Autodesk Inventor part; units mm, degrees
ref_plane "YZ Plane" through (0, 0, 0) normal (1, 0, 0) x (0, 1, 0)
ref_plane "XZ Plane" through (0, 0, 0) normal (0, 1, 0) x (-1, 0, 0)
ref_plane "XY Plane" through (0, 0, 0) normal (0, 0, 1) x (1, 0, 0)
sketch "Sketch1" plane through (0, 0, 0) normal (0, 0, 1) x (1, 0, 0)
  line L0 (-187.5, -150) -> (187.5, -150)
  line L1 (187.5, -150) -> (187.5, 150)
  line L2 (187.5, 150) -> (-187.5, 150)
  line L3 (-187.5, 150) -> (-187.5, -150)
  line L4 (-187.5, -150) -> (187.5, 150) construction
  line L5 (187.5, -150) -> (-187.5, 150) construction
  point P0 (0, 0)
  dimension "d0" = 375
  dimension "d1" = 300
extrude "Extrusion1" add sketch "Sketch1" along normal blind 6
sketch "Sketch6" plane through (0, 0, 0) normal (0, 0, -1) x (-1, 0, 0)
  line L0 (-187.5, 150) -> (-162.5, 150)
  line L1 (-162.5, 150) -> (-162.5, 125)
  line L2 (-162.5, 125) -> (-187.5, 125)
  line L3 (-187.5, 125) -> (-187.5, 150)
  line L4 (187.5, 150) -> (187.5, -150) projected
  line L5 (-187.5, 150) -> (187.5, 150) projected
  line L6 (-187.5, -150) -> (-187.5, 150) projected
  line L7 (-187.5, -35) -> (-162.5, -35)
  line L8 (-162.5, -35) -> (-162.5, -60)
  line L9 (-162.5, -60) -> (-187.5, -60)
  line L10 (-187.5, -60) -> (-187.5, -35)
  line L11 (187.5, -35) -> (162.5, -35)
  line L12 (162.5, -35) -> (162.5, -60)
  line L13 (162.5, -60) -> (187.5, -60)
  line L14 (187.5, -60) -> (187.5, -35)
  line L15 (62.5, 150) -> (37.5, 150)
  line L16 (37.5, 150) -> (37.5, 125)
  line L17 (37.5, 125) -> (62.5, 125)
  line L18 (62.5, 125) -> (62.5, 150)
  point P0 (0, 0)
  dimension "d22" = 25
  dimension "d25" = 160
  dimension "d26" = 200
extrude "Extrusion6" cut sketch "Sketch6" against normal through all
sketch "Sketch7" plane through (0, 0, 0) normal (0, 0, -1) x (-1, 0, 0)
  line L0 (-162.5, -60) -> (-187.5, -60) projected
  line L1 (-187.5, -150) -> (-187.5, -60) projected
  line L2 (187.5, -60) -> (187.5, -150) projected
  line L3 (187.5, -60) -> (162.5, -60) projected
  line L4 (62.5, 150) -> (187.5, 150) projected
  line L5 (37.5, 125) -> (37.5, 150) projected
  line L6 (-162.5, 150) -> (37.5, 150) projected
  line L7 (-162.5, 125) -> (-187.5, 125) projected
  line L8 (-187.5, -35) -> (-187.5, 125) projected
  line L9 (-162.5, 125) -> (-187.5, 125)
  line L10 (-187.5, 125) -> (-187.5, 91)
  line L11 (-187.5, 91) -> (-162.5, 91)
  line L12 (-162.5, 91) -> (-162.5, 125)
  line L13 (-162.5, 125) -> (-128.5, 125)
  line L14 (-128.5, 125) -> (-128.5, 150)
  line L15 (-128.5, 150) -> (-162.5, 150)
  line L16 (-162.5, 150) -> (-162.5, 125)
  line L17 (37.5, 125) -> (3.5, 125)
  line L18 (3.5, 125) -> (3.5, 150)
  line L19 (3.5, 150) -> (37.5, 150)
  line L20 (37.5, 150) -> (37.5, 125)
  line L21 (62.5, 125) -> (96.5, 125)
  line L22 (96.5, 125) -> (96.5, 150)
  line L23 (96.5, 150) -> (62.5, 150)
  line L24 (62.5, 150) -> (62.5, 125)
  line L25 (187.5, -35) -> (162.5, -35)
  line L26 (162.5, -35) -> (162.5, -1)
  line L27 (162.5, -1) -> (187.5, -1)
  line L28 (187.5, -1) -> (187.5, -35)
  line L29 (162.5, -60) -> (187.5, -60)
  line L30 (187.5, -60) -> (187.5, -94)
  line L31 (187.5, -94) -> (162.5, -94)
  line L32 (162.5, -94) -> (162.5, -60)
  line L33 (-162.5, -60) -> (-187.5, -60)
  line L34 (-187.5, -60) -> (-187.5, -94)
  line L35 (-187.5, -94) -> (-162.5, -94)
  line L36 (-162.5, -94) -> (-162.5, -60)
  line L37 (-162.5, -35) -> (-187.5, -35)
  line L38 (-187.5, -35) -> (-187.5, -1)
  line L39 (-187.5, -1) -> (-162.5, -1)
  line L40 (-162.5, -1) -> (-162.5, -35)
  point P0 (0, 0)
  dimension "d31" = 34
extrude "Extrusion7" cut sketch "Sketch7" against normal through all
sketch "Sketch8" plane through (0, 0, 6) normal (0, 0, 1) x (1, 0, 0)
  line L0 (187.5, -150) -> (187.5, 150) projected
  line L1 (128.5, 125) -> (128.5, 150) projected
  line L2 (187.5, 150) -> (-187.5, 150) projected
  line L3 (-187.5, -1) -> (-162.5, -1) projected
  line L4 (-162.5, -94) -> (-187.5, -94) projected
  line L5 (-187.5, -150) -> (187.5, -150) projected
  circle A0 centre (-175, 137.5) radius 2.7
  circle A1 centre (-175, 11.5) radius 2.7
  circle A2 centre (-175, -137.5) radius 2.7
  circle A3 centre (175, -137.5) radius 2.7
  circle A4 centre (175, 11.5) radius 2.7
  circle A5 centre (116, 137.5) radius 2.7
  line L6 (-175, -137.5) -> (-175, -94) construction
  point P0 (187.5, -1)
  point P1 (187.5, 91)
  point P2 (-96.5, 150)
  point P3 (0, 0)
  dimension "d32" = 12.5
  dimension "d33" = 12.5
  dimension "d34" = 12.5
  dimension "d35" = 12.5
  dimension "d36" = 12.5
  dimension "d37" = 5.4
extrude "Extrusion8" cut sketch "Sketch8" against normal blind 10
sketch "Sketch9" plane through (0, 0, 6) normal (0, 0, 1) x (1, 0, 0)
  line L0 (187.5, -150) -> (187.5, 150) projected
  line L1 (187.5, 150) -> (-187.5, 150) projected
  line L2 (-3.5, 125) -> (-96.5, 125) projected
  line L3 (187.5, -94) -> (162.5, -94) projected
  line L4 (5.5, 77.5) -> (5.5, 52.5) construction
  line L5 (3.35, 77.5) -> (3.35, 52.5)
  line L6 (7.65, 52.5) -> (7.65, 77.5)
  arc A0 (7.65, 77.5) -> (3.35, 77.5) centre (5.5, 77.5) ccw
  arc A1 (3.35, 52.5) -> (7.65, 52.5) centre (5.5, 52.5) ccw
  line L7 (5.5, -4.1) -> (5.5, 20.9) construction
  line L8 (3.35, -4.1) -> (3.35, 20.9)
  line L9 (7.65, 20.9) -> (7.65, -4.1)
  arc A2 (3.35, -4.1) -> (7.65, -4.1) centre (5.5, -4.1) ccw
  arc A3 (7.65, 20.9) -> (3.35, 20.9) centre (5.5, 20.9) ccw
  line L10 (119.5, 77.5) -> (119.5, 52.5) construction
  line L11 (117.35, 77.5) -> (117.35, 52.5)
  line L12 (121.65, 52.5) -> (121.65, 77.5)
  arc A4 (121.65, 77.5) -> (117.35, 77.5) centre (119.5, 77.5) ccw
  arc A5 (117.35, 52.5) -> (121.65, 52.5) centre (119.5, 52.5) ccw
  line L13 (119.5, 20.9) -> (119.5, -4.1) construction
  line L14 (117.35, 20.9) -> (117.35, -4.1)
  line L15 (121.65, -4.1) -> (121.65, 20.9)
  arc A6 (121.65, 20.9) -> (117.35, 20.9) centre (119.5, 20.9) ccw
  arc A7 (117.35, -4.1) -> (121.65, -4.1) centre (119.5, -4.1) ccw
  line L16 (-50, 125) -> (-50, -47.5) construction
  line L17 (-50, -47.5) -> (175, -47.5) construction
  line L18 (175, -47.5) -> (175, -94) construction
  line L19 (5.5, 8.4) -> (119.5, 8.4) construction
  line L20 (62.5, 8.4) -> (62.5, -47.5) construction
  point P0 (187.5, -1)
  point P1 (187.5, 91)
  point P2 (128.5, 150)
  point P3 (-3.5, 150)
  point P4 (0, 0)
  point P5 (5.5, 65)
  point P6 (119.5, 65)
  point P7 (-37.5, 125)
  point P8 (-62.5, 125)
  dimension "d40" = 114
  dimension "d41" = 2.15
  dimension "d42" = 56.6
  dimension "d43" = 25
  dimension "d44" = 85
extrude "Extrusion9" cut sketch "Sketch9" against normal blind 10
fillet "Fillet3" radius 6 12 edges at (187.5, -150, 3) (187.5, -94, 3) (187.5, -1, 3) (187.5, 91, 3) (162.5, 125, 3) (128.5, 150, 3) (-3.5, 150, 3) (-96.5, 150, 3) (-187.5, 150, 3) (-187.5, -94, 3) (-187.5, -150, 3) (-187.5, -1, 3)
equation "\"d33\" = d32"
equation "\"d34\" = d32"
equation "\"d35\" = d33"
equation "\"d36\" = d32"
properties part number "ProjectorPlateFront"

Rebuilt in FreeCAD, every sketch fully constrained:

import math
import FreeCAD as App
import Part
import Sketcher
Q = App.Units.Quantity


def edges_at(feature, points):
    """Names of the edges that pass closest to the given points."""
    edges = feature.Shape.Edges
    near = lambda p: min(range(len(edges)), key=lambda i: edges[i].distToShape(Part.Vertex(*p))[0])
    return sorted({f"Edge{near(p) + 1}" for p in points})


def add_polygon(sketch, points):
    """Adds a closed chain of lines whose ends are joined by coincident constraints."""
    first, n = sketch.GeometryCount, len(points)
    for a, b in zip(points, points[1:] + points[:1]):
        sketch.addGeometry(Part.LineSegment(App.Vector(*a, 0), App.Vector(*b, 0)), False)
    for i in range(n):
        sketch.addConstraint(Sketcher.Constraint("Coincident", first + i, 2, first + (i + 1) % n, 1))

doc = App.newDocument("Part")
body = doc.addObject("PartDesign::Body", "Body")

# Sketch on XY plane
sketch1 = body.newObject("Sketcher::SketchObject", "Sketch")
sketch1.AttachmentSupport = (doc.getObject("XY_Plane"), [""])
sketch1.MapMode = "FlatFace"
add_polygon(sketch1, [(-187.5, 150), (-187.5, -150), (187.5, -150), (187.5, 150)])  # lines 0-3
sketch1.addConstraint([
    Sketcher.Constraint("Vertical", 0),
    Sketcher.Constraint("Horizontal", 1),
    Sketcher.Constraint("Vertical", 2),
    Sketcher.Constraint("Horizontal", 3),
    Sketcher.Constraint("Symmetric", 0, 2, 2, 2, -1, 1),
    Sketcher.Constraint("DistanceX", 1, 1, 1, 2, Q("375 mm")),
    Sketcher.Constraint("DistanceY", 0, 2, 0, 1, Q("300 mm")),
])
pad1 = body.newObject("PartDesign::Pad", "Pad")
pad1.Profile = sketch1
pad1.Length = 6

# Sketch on XY plane
sketch2 = body.newObject("Sketcher::SketchObject", "Sketch001")
sketch2.AttachmentSupport = (doc.getObject("XY_Plane"), [""])
sketch2.MapMode = "FlatFace"
add_polygon(sketch2, [(-187.5, -60), (-187.5, -35), (-162.5, -35), (-162.5, -60)])  # lines 0-3
add_polygon(sketch2, [(-62.5, 150), (-37.5, 150), (-37.5, 125), (-62.5, 125)])  # lines 4-7
add_polygon(sketch2, [(162.5, -35), (187.5, -35), (187.5, -60), (162.5, -60)])  # lines 8-11
add_polygon(sketch2, [(162.5, 150), (187.5, 150), (187.5, 125), (162.5, 125)])  # lines 12-15
sketch2.addConstraint([
    Sketcher.Constraint("Vertical", 0),
    Sketcher.Constraint("Horizontal", 1),
    Sketcher.Constraint("Vertical", 2),
    Sketcher.Constraint("Horizontal", 3),
    Sketcher.Constraint("Horizontal", 4),
    Sketcher.Constraint("Vertical", 5),
    Sketcher.Constraint("Horizontal", 6),
    Sketcher.Constraint("Vertical", 7),
    Sketcher.Constraint("Horizontal", 8),
    Sketcher.Constraint("Vertical", 9),
    Sketcher.Constraint("Horizontal", 10),
    Sketcher.Constraint("Vertical", 11),
    Sketcher.Constraint("Horizontal", 12),
    Sketcher.Constraint("Vertical", 13),
    Sketcher.Constraint("Horizontal", 14),
    Sketcher.Constraint("Vertical", 15),
    Sketcher.Constraint("Symmetric", 0, 2, 8, 2, -2),
    Sketcher.Constraint("Symmetric", 2, 2, 10, 2, -2),
    Sketcher.Constraint("Horizontal", 7, 2, 12, 2),
    Sketcher.Constraint("Horizontal", 6, 2, 13, 2),
    Sketcher.Constraint("Vertical", 9, 2, 12, 2),
    Sketcher.Constraint("Vertical", 11, 2, 14, 2),
    Sketcher.Constraint("Equal", 3, 4),
    Sketcher.Constraint("Equal", 14, 0),
    Sketcher.Constraint("Equal", 2, 5),
    Sketcher.Constraint("DistanceX", 1, 1, 1, 2, Q("25 mm")),
    Sketcher.Constraint("DistanceY", 1, 2, 5, 2, Q("160 mm")),
    Sketcher.Constraint("DistanceX", 5, 2, 10, 2, Q("200 mm")),
    Sketcher.Constraint("DistanceY", 0, 2, -1, 1, Q("35 mm")),
    Sketcher.Constraint("DistanceX", 1, 2, 4, 2, Q("125 mm")),
])
pocket1 = body.newObject("PartDesign::Pocket", "Pocket")
pocket1.Profile = sketch2
pocket1.Type = "ThroughAll"
pocket1.Reversed = True

# Sketch on XY plane
sketch3 = body.newObject("Sketcher::SketchObject", "Sketch002")
sketch3.AttachmentSupport = (doc.getObject("XY_Plane"), [""])
sketch3.MapMode = "FlatFace"
add_polygon(sketch3, [(162.5, -94), (162.5, -60), (187.5, -60), (187.5, -94)])  # lines 0-3
add_polygon(sketch3, [(-187.5, -94), (-187.5, -60), (-162.5, -60), (-162.5, -94)])  # lines 4-7
add_polygon(sketch3, [(-96.5, 150), (-62.5, 150), (-62.5, 125), (-96.5, 125)])  # lines 8-11
add_polygon(sketch3, [(-3.5, 125), (-37.5, 125), (-37.5, 150), (-3.5, 150)])  # lines 12-15
add_polygon(sketch3, [(162.5, -1), (187.5, -1), (187.5, -35), (162.5, -35)])  # lines 16-19
add_polygon(sketch3, [(162.5, 91), (162.5, 125), (187.5, 125), (187.5, 91)])  # lines 20-23
add_polygon(sketch3, [(128.5, 125), (128.5, 150), (162.5, 150), (162.5, 125)])  # lines 24-27
add_polygon(sketch3, [(-162.5, -35), (-187.5, -35), (-187.5, -1), (-162.5, -1)])  # lines 28-31
sketch3.addConstraint([
    Sketcher.Constraint("Vertical", 0),
    Sketcher.Constraint("Horizontal", 1),
    Sketcher.Constraint("Vertical", 2),
    Sketcher.Constraint("Horizontal", 3),
    Sketcher.Constraint("Vertical", 4),
    Sketcher.Constraint("Horizontal", 5),
    Sketcher.Constraint("Vertical", 6),
    Sketcher.Constraint("Horizontal", 7),
    Sketcher.Constraint("Horizontal", 8),
    Sketcher.Constraint("Vertical", 9),
    Sketcher.Constraint("Horizontal", 10),
    Sketcher.Constraint("Vertical", 11),
    Sketcher.Constraint("Horizontal", 12),
    Sketcher.Constraint("Vertical", 13),
    Sketcher.Constraint("Horizontal", 14),
    Sketcher.Constraint("Vertical", 15),
    Sketcher.Constraint("Horizontal", 16),
    Sketcher.Constraint("Vertical", 17),
    Sketcher.Constraint("Horizontal", 18),
    Sketcher.Constraint("Vertical", 19),
    Sketcher.Constraint("Vertical", 20),
    Sketcher.Constraint("Horizontal", 21),
    Sketcher.Constraint("Vertical", 22),
    Sketcher.Constraint("Horizontal", 23),
    Sketcher.Constraint("Vertical", 24),
    Sketcher.Constraint("Horizontal", 25),
    Sketcher.Constraint("Vertical", 26),
    Sketcher.Constraint("Horizontal", 27),
    Sketcher.Constraint("Horizontal", 28),
    Sketcher.Constraint("Vertical", 29),
    Sketcher.Constraint("Horizontal", 30),
    Sketcher.Constraint("Vertical", 31),
    Sketcher.Constraint("Coincident", 26, 2, 20, 2),
    Sketcher.Constraint("Symmetric", 1, 2, 4, 2, -2),
    Sketcher.Constraint("Symmetric", 3, 2, 6, 2, -2),
    Sketcher.Constraint("Symmetric", 17, 2, 28, 2, -2),
    Sketcher.Constraint("Symmetric", 19, 2, 30, 2, -2),
    Sketcher.Constraint("Horizontal", 10, 2, 12, 2),
    Sketcher.Constraint("Horizontal", 11, 2, 13, 2),
    Sketcher.Constraint("Horizontal", 15, 2, 20, 2),
    Sketcher.Constraint("Horizontal", 14, 2, 24, 2),
    Sketcher.Constraint("Vertical", 2, 2, 16, 2),
    Sketcher.Constraint("Vertical", 3, 2, 18, 2),
    Sketcher.Constraint("Vertical", 19, 2, 20, 2),
    Sketcher.Constraint("Vertical", 17, 2, 21, 2),
    Sketcher.Constraint("Equal", 10, 12),
    Sketcher.Constraint("Equal", 14, 25),
    Sketcher.Constraint("Equal", 27, 0),
    Sketcher.Constraint("Equal", 30, 9),
    Sketcher.Constraint("Equal", 6, 17),
    Sketcher.Constraint("Equal", 19, 20),
    Sketcher.Constraint("DistanceX", 8, 1, 8, 2, Q("34 mm")),
    Sketcher.Constraint("DistanceX", 1, 1, 1, 2, Q("25 mm")),
    Sketcher.Constraint("DistanceY", 0, 2, -1, 1, Q("60 mm")),
    Sketcher.Constraint("DistanceY", -1, 1, 8, 2, Q("150 mm")),
    Sketcher.Constraint("DistanceY", 16, 2, -1, 1, Q("1 mm")),
    Sketcher.Constraint("DistanceX", 4, 2, 0, 2, Q("350 mm")),
    Sketcher.Constraint("DistanceX", 5, 2, 8, 2, Q("100 mm")),
    Sketcher.Constraint("DistanceX", 9, 2, 12, 2, Q("25 mm")),
])
pocket2 = body.newObject("PartDesign::Pocket", "Pocket001")
pocket2.Profile = sketch3
pocket2.Type = "ThroughAll"
pocket2.Reversed = True

# Sketch on XY plane
sketch4 = body.newObject("Sketcher::SketchObject", "Sketch003")
sketch4.AttachmentSupport = (doc.getObject("XY_Plane"), [""])
sketch4.MapMode = "FlatFace"
sketch4.AttachmentOffset = App.Placement(App.Vector(0, 0, 6), App.Rotation())
sketch4.addGeometry([
    Part.Circle(App.Vector(-175, 137.5, 0), App.Vector(0, 0, 1), 2.7),  # 0
    Part.Circle(App.Vector(-175, 11.5, 0), App.Vector(0, 0, 1), 2.7),  # 1
    Part.Circle(App.Vector(-175, -137.5, 0), App.Vector(0, 0, 1), 2.7),  # 2
    Part.Circle(App.Vector(175, -137.5, 0), App.Vector(0, 0, 1), 2.7),  # 3
    Part.Circle(App.Vector(175, 11.5, 0), App.Vector(0, 0, 1), 2.7),  # 4
    Part.Circle(App.Vector(116, 137.5, 0), App.Vector(0, 0, 1), 2.7),  # 5
], False)
sketch4.addConstraint([
    Sketcher.Constraint("Equal", 0, 1),
    Sketcher.Constraint("Equal", 1, 2),
    Sketcher.Constraint("Equal", 2, 3),
    Sketcher.Constraint("Equal", 3, 4),
    Sketcher.Constraint("Equal", 4, 5),
    Sketcher.Constraint("Symmetric", 0, 3, 3, 3, -1, 1),
    Sketcher.Constraint("Symmetric", 2, 3, 3, 3, -2),
    Sketcher.Constraint("Symmetric", 1, 3, 4, 3, -2),
    Sketcher.Constraint("Horizontal", 0, 3, 5, 3),
    Sketcher.Constraint("Vertical", 0, 3, 1, 3),
    Sketcher.Constraint("Diameter", 0, Q("5.4 mm")),
    Sketcher.Constraint("DistanceX", 0, 3, -1, 1, Q("175 mm")),
    Sketcher.Constraint("DistanceX", -1, 1, 5, 3, Q("116 mm")),
    Sketcher.Constraint("DistanceY", 1, 3, 0, 3, Q("126 mm")),
    Sketcher.Constraint("DistanceY", 2, 3, 1, 3, Q("149 mm")),
])
pocket3 = body.newObject("PartDesign::Pocket", "Pocket002")
pocket3.Profile = sketch4
pocket3.Length = 10

# Sketch on XY plane
sketch5 = body.newObject("Sketcher::SketchObject", "Sketch004")
sketch5.AttachmentSupport = (doc.getObject("XY_Plane"), [""])
sketch5.MapMode = "FlatFace"
sketch5.AttachmentOffset = App.Placement(App.Vector(0, 0, 6), App.Rotation())
sketch5.addGeometry([
    Part.ArcOfCircle(Part.Circle(App.Vector(5.5, 77.5, 0), App.Vector(0, 0, 1), 2.15), math.radians(0), math.radians(180)),  # 0
    Part.LineSegment(App.Vector(3.35, 77.5, 0), App.Vector(3.35, 52.5, 0)),  # 1
    Part.ArcOfCircle(Part.Circle(App.Vector(5.5, 52.5, 0), App.Vector(0, 0, 1), 2.15), math.radians(180), math.radians(360)),  # 2
    Part.LineSegment(App.Vector(7.65, 52.5, 0), App.Vector(7.65, 77.5, 0)),  # 3
    Part.LineSegment(App.Vector(3.35, 20.9, 0), App.Vector(3.35, -4.1, 0)),  # 4
    Part.ArcOfCircle(Part.Circle(App.Vector(5.5, -4.1, 0), App.Vector(0, 0, 1), 2.15), math.radians(180), math.radians(360)),  # 5
    Part.LineSegment(App.Vector(7.65, -4.1, 0), App.Vector(7.65, 20.9, 0)),  # 6
    Part.ArcOfCircle(Part.Circle(App.Vector(5.5, 20.9, 0), App.Vector(0, 0, 1), 2.15), math.radians(0), math.radians(180)),  # 7
    Part.ArcOfCircle(Part.Circle(App.Vector(119.5, 77.5, 0), App.Vector(0, 0, 1), 2.15), math.radians(0), math.radians(180)),  # 8
    Part.LineSegment(App.Vector(117.35, 77.5, 0), App.Vector(117.35, 52.5, 0)),  # 9
    Part.ArcOfCircle(Part.Circle(App.Vector(119.5, 52.5, 0), App.Vector(0, 0, 1), 2.15), math.radians(180), math.radians(360)),  # 10
    Part.LineSegment(App.Vector(121.65, 52.5, 0), App.Vector(121.65, 77.5, 0)),  # 11
    Part.ArcOfCircle(Part.Circle(App.Vector(119.5, 20.9, 0), App.Vector(0, 0, 1), 2.15), math.radians(0), math.radians(180)),  # 12
    Part.LineSegment(App.Vector(117.35, 20.9, 0), App.Vector(117.35, -4.1, 0)),  # 13
    Part.ArcOfCircle(Part.Circle(App.Vector(119.5, -4.1, 0), App.Vector(0, 0, 1), 2.15), math.radians(180), math.radians(360)),  # 14
    Part.LineSegment(App.Vector(121.65, -4.1, 0), App.Vector(121.65, 20.9, 0)),  # 15
], False)
sketch5.addConstraint([
    Sketcher.Constraint("Tangent", 0, 2, 1, 1),
    Sketcher.Constraint("Tangent", 1, 2, 2, 1),
    Sketcher.Constraint("Tangent", 2, 2, 3, 1),
    Sketcher.Constraint("Tangent", 3, 2, 0, 1),
    Sketcher.Constraint("Tangent", 4, 2, 5, 1),
    Sketcher.Constraint("Tangent", 5, 2, 6, 1),
    Sketcher.Constraint("Tangent", 6, 2, 7, 1),
    Sketcher.Constraint("Tangent", 7, 2, 4, 1),
    Sketcher.Constraint("Tangent", 8, 2, 9, 1),
    Sketcher.Constraint("Tangent", 9, 2, 10, 1),
    Sketcher.Constraint("Tangent", 10, 2, 11, 1),
    Sketcher.Constraint("Tangent", 11, 2, 8, 1),
    Sketcher.Constraint("Tangent", 12, 2, 13, 1),
    Sketcher.Constraint("Tangent", 13, 2, 14, 1),
    Sketcher.Constraint("Tangent", 14, 2, 15, 1),
    Sketcher.Constraint("Tangent", 15, 2, 12, 1),
    Sketcher.Constraint("Vertical", 1),
    Sketcher.Constraint("Vertical", 3),
    Sketcher.Constraint("Vertical", 4),
    Sketcher.Constraint("Vertical", 6),
    Sketcher.Constraint("Vertical", 9),
    Sketcher.Constraint("Vertical", 11),
    Sketcher.Constraint("Vertical", 13),
    Sketcher.Constraint("Vertical", 15),
    Sketcher.Constraint("Equal", 2, 5),
    Sketcher.Constraint("Equal", 7, 8),
    Sketcher.Constraint("Equal", 10, 12),
    Sketcher.Constraint("Horizontal", 0, 3, 8, 3),
    Sketcher.Constraint("Horizontal", 2, 3, 10, 3),
    Sketcher.Constraint("Horizontal", 7, 3, 12, 3),
    Sketcher.Constraint("Horizontal", 5, 3, 14, 3),
    Sketcher.Constraint("Vertical", 2, 3, 5, 3),
    Sketcher.Constraint("Vertical", 10, 3, 12, 3),
    Sketcher.Constraint("Equal", 3, 4),
    Sketcher.Constraint("DistanceY", 1, 2, 1, 1, Q("25 mm")),
    Sketcher.Constraint("Radius", 0, Q("2.15 mm")),
    Sketcher.Constraint("DistanceX", 0, 3, 8, 3, Q("114 mm")),
    Sketcher.Constraint("DistanceY", 5, 3, 2, 3, Q("56.6 mm")),
    Sketcher.Constraint("DistanceX", -1, 1, 0, 3, Q("5.5 mm")),
    Sketcher.Constraint("DistanceY", -1, 1, 0, 3, Q("77.5 mm")),
])
pocket4 = body.newObject("PartDesign::Pocket", "Pocket003")
pocket4.Profile = sketch5
pocket4.Length = 10
doc.recompute()

fillet = body.newObject("PartDesign::Fillet", "Fillet")
fillet.Base = (pocket4, edges_at(pocket4, [
    (187.5, -150, 3),
    (187.5, -94, 3),
    (187.5, -1, 3),
    (187.5, 91, 3),
    (162.5, 125, 3),
    (128.5, 150, 3),
    (-3.5, 150, 3),
    (-96.5, 150, 3),
    (-187.5, 150, 3),
    (-187.5, -94, 3),
    (-187.5, -150, 3),
    (-187.5, -1, 3),
]))
fillet.Radius = 6

doc.recompute()
